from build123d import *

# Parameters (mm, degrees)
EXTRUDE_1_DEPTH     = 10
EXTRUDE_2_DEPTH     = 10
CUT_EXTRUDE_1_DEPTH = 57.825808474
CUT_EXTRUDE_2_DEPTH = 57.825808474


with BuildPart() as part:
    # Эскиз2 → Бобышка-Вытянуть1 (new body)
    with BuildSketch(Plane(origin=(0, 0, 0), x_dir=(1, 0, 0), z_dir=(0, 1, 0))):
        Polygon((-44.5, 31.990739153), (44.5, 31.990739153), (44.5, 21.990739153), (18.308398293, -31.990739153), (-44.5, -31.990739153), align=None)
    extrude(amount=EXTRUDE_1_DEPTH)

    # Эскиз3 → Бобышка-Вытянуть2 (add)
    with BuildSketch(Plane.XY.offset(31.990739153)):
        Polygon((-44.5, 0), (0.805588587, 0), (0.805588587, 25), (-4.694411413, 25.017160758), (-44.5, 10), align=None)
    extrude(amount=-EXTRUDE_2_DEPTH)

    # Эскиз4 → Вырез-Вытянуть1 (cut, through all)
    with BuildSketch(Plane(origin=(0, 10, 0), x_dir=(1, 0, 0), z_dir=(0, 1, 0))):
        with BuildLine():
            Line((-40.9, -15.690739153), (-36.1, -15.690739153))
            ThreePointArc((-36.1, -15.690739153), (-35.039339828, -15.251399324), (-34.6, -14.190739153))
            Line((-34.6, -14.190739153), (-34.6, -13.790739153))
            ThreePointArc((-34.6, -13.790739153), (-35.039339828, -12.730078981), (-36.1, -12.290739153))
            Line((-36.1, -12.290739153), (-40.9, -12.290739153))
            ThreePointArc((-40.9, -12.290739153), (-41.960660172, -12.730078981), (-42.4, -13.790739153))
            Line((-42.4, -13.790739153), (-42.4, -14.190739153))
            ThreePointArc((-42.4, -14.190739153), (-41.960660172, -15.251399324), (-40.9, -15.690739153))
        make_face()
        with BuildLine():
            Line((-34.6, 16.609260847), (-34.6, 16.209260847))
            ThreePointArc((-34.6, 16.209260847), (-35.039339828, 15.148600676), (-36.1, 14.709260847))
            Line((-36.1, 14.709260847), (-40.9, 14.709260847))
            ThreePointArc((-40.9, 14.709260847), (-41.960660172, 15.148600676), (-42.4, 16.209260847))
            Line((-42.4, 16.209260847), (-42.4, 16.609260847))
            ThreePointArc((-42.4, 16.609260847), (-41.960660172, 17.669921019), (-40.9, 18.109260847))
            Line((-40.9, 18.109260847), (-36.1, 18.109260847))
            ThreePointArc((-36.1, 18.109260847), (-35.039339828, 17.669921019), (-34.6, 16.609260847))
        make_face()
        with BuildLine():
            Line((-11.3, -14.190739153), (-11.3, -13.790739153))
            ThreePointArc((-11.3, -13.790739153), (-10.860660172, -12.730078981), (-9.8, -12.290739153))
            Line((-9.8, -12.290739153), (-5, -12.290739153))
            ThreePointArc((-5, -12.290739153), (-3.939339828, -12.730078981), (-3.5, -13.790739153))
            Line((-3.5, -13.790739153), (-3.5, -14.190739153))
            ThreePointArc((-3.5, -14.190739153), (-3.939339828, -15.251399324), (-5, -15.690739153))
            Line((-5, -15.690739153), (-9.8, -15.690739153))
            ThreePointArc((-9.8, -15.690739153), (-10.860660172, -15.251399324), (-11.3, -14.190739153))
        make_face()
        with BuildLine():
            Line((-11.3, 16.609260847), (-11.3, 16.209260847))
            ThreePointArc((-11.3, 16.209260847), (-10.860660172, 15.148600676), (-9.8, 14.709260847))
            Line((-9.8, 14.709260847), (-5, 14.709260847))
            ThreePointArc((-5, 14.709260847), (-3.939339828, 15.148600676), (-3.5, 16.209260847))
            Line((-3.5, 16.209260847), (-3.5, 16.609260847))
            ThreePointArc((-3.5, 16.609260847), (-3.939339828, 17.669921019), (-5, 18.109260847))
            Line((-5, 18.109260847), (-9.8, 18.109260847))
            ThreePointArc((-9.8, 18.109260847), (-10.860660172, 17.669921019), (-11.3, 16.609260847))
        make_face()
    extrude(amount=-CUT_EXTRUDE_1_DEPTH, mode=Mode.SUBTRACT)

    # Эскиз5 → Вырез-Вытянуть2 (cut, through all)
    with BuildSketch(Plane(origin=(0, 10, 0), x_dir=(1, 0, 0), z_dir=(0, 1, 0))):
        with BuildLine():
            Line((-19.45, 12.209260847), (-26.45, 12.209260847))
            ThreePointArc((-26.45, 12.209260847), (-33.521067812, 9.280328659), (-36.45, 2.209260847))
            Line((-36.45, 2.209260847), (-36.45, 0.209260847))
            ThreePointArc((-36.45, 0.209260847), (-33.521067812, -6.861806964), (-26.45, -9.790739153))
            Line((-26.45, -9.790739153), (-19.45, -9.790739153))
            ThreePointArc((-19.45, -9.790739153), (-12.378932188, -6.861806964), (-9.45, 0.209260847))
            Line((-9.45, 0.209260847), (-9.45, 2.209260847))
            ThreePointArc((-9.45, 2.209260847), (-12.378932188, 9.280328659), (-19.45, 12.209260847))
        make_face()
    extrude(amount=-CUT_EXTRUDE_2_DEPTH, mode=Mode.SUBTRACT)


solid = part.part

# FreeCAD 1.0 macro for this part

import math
import FreeCAD as App
import Part
import Sketcher
from FreeCAD import Vector
Q = App.Units.Quantity

doc = App.newDocument("Part")
params = doc.addObject("Spreadsheet::Sheet", "Params")
for row, (alias, value) in enumerate([
    ("sketch1_width", "89 mm"),
    ("sketch1_height", "10 mm"),
    ("sketch1_length", "60 mm"),
    ("pad1_length", "10 mm"),
    ("sketch2_height", "25 mm"),
    ("sketch2_height2", "10 mm"),
    ("pad2_length", "10 mm"),
    ("sketch3_radius", "1.5 mm"),
    ("sketch3_width", "4.8 mm"),
    ("sketch3_height", "0.4 mm"),
    ("sketch4_radius", "10 mm"),
    ("sketch4_width", "7 mm"),
    ("sketch4_height", "2 mm"),
], start=1):
    params.set(f"A{row}", alias)
    params.set(f"B{row}", "=" + value)
    params.setAlias(f"B{row}", alias)

body = doc.addObject("PartDesign::Body", "Body")

# Sketch on XZ plane
sketch1 = body.newObject("Sketcher::SketchObject", "Sketch")
sketch1.AttachmentSupport = (doc.getObject("XZ_Plane"), [""])
sketch1.MapMode = "FlatFace"
sketch1.addGeometry([
    Part.LineSegment(Vector(44, -32, 0), Vector(-44, -32, 0)),  # 0
    Part.LineSegment(Vector(-44, -32, 0), Vector(-44, 32, 0)),  # 1
    Part.LineSegment(Vector(-44, 32, 0), Vector(18, 32, 0)),  # 2
    Part.LineSegment(Vector(18, 32, 0), Vector(44, -22, 0)),  # 3
    Part.LineSegment(Vector(44, -22, 0), Vector(44, -32, 0)),  # 4
], False)
sketch1.addConstraint([
    Sketcher.Constraint("Coincident", 0, 2, 1, 1),
    Sketcher.Constraint("Coincident", 1, 2, 2, 1),
    Sketcher.Constraint("Coincident", 2, 2, 3, 1),
    Sketcher.Constraint("Coincident", 3, 2, 4, 1),
    Sketcher.Constraint("Coincident", 4, 2, 0, 1),
    Sketcher.Constraint("Horizontal", 0),
    Sketcher.Constraint("Vertical", 1),
    Sketcher.Constraint("Horizontal", 2),
    Sketcher.Constraint("Vertical", 4),
    Sketcher.Constraint("Symmetric", 1, 2, 4, 2, -1, 1),
    Sketcher.Constraint("DistanceX", 0, 2, 0, 1, Q("89 mm")),
    Sketcher.Constraint("DistanceY", 4, 2, 4, 1, Q("10 mm")),
    Sketcher.Constraint("Distance", 3, Q("60 mm")),
    Sketcher.Constraint("DistanceX", 2, 1, 2, 2, Q("62.808398 mm")),
])
sketch1.setExpression("Constraints[10]", "Params.sketch1_width")
sketch1.setExpression("Constraints[11]", "Params.sketch1_height")
sketch1.setExpression("Constraints[12]", "Params.sketch1_length")
pad1 = body.newObject("PartDesign::Pad", "Pad")
pad1.Profile = sketch1
pad1.setExpression("Length", "Params.pad1_length")
pad1.Reversed = True

# Sketch on XY plane
sketch2 = body.newObject("Sketcher::SketchObject", "Sketch001")
sketch2.AttachmentSupport = (doc.getObject("XY_Plane"), [""])
sketch2.MapMode = "FlatFace"
sketch2.AttachmentOffset = App.Placement(Vector(0, 0, 31.990739), App.Rotation())
sketch2.addGeometry([
    Part.LineSegment(Vector(-44, 0, 0), Vector(1, 0, 0)),  # 0
    Part.LineSegment(Vector(1, 0, 0), Vector(1, 25, 0)),  # 1
    Part.LineSegment(Vector(1, 25, 0), Vector(-5, 25, 0)),  # 2
    Part.LineSegment(Vector(-5, 25, 0), Vector(-44, 10, 0)),  # 3
    Part.LineSegment(Vector(-44, 10, 0), Vector(-44, 0, 0)),  # 4
], False)
sketch2.addConstraint([
    Sketcher.Constraint("Coincident", 0, 2, 1, 1),
    Sketcher.Constraint("Coincident", 1, 2, 2, 1),
    Sketcher.Constraint("Coincident", 2, 2, 3, 1),
    Sketcher.Constraint("Coincident", 3, 2, 4, 1),
    Sketcher.Constraint("Coincident", 4, 2, 0, 1),
    Sketcher.Constraint("Horizontal", 0),
    Sketcher.Constraint("Vertical", 1),
    Sketcher.Constraint("Vertical", 4),
    Sketcher.Constraint("PointOnObject", 0, 2, -1),
    Sketcher.Constraint("DistanceY", 1, 1, 1, 2, Q("25 mm")),
    Sketcher.Constraint("DistanceY", 4, 2, 4, 1, Q("10 mm")),
    Sketcher.Constraint("DistanceX", 3, 2, -1, 1, Q("44.5 mm")),
    Sketcher.Constraint("DistanceX", 2, 2, 1, 2, Q("5.5 mm")),
    Sketcher.Constraint("DistanceX", 0, 1, 0, 2, Q("45.305589 mm")),
    Sketcher.Constraint("DistanceY", -1, 1, 2, 2, Q("25.017161 mm")),
])
sketch2.setExpression("Constraints[9]", "Params.sketch2_height")
sketch2.setExpression("Constraints[10]", "Params.sketch2_height2")
pad2 = body.newObject("PartDesign::Pad", "Pad001")
pad2.Profile = sketch2
pad2.setExpression("Length", "Params.pad2_length")
pad2.Reversed = True

# Sketch on XZ plane
sketch3 = body.newObject("Sketcher::SketchObject", "Sketch002")
sketch3.AttachmentSupport = (doc.getObject("XZ_Plane"), [""])
sketch3.MapMode = "FlatFace"
sketch3.AttachmentOffset = App.Placement(Vector(0, 0, -10), App.Rotation())
sketch3.addGeometry([
    Part.LineSegment(Vector(-40.9, 15.69, 0), Vector(-36.1, 15.69, 0)),  # 0
    Part.ArcOfCircle(Part.Circle(Vector(-36.1, 14.19, 0), Vector(0, 0, 1), 1.5), math.radians(0), math.radians(90)),  # 1
    Part.LineSegment(Vector(-34.6, 14.19, 0), Vector(-34.6, 13.79, 0)),  # 2
    Part.ArcOfCircle(Part.Circle(Vector(-36.1, 13.79, 0), Vector(0, 0, 1), 1.5), math.radians(-90), math.radians(0)),  # 3
    Part.LineSegment(Vector(-36.1, 12.29, 0), Vector(-40.9, 12.29, 0)),  # 4
    Part.ArcOfCircle(Part.Circle(Vector(-40.9, 13.79, 0), Vector(0, 0, 1), 1.5), math.radians(180), math.radians(270)),  # 5
    Part.LineSegment(Vector(-42.4, 13.79, 0), Vector(-42.4, 14.19, 0)),  # 6
    Part.ArcOfCircle(Part.Circle(Vector(-40.9, 14.19, 0), Vector(0, 0, 1), 1.5), math.radians(90), math.radians(180)),  # 7
    Part.LineSegment(Vector(-34.6, -16.21, 0), Vector(-34.6, -16.61, 0)),  # 8
    Part.ArcOfCircle(Part.Circle(Vector(-36.1, -16.61, 0), Vector(0, 0, 1), 1.5), math.radians(-90), math.radians(0)),  # 9
    Part.LineSegment(Vector(-36.1, -18.11, 0), Vector(-40.9, -18.11, 0)),  # 10
    Part.ArcOfCircle(Part.Circle(Vector(-40.9, -16.61, 0), Vector(0, 0, 1), 1.5), math.radians(180), math.radians(270)),  # 11
    Part.LineSegment(Vector(-42.4, -16.61, 0), Vector(-42.4, -16.21, 0)),  # 12
    Part.ArcOfCircle(Part.Circle(Vector(-40.9, -16.21, 0), Vector(0, 0, 1), 1.5), math.radians(90), math.radians(180)),  # 13
    Part.LineSegment(Vector(-40.9, -14.71, 0), Vector(-36.1, -14.71, 0)),  # 14
    Part.ArcOfCircle(Part.Circle(Vector(-36.1, -16.21, 0), Vector(0, 0, 1), 1.5), math.radians(0), math.radians(90)),  # 15
    Part.LineSegment(Vector(-11.3, 13.79, 0), Vector(-11.3, 14.19, 0)),  # 16
    Part.ArcOfCircle(Part.Circle(Vector(-9.8, 14.19, 0), Vector(0, 0, 1), 1.5), math.radians(90), math.radians(180)),  # 17
    Part.LineSegment(Vector(-9.8, 15.69, 0), Vector(-5, 15.69, 0)),  # 18
    Part.ArcOfCircle(Part.Circle(Vector(-5, 14.19, 0), Vector(0, 0, 1), 1.5), math.radians(0), math.radians(90)),  # 19
    Part.LineSegment(Vector(-3.5, 14.19, 0), Vector(-3.5, 13.79, 0)),  # 20
    Part.ArcOfCircle(Part.Circle(Vector(-5, 13.79, 0), Vector(0, 0, 1), 1.5), math.radians(-90), math.radians(0)),  # 21
    Part.LineSegment(Vector(-5, 12.29, 0), Vector(-9.8, 12.29, 0)),  # 22
    Part.ArcOfCircle(Part.Circle(Vector(-9.8, 13.79, 0), Vector(0, 0, 1), 1.5), math.radians(180), math.radians(270)),  # 23
    Part.LineSegment(Vector(-11.3, -16.61, 0), Vector(-11.3, -16.21, 0)),  # 24
    Part.ArcOfCircle(Part.Circle(Vector(-9.8, -16.21, 0), Vector(0, 0, 1), 1.5), math.radians(90), math.radians(180)),  # 25
    Part.LineSegment(Vector(-9.8, -14.71, 0), Vector(-5, -14.71, 0)),  # 26
    Part.ArcOfCircle(Part.Circle(Vector(-5, -16.21, 0), Vector(0, 0, 1), 1.5), math.radians(0), math.radians(90)),  # 27
    Part.LineSegment(Vector(-3.5, -16.21, 0), Vector(-3.5, -16.61, 0)),  # 28
    Part.ArcOfCircle(Part.Circle(Vector(-5, -16.61, 0), Vector(0, 0, 1), 1.5), math.radians(-90), math.radians(0)),  # 29
    Part.LineSegment(Vector(-5, -18.11, 0), Vector(-9.8, -18.11, 0)),  # 30
    Part.ArcOfCircle(Part.Circle(Vector(-9.8, -16.61, 0), Vector(0, 0, 1), 1.5), math.radians(180), math.radians(270)),  # 31
], False)
sketch3.addConstraint([
    Sketcher.Constraint("Tangent", 0, 2, 1, 2),
    Sketcher.Constraint("Tangent", 1, 1, 2, 1),
    Sketcher.Constraint("Tangent", 2, 2, 3, 2),
    Sketcher.Constraint("Tangent", 3, 1, 4, 1),
    Sketcher.Constraint("Tangent", 4, 2, 5, 2),
    Sketcher.Constraint("Tangent", 5, 1, 6, 1),
    Sketcher.Constraint("Tangent", 6, 2, 7, 2),
    Sketcher.Constraint("Tangent", 7, 1, 0, 1),
    Sketcher.Constraint("Tangent", 8, 2, 9, 2),
    Sketcher.Constraint("Tangent", 9, 1, 10, 1),
    Sketcher.Constraint("Tangent", 10, 2, 11, 2),
    Sketcher.Constraint("Tangent", 11, 1, 12, 1),
    Sketcher.Constraint("Tangent", 12, 2, 13, 2),
    Sketcher.Constraint("Tangent", 13, 1, 14, 1),
    Sketcher.Constraint("Tangent", 14, 2, 15, 2),
    Sketcher.Constraint("Tangent", 15, 1, 8, 1),
    Sketcher.Constraint("Tangent", 16, 2, 17, 2),
    Sketcher.Constraint("Tangent", 17, 1, 18, 1),
    Sketcher.Constraint("Tangent", 18, 2, 19, 2),
    Sketcher.Constraint("Tangent", 19, 1, 20, 1),
    Sketcher.Constraint("Tangent", 20, 2, 21, 2),
    Sketcher.Constraint("Tangent", 21, 1, 22, 1),
    Sketcher.Constraint("Tangent", 22, 2, 23, 2),
    Sketcher.Constraint("Tangent", 23, 1, 16, 1),
    Sketcher.Constraint("Tangent", 24, 2, 25, 2),
    Sketcher.Constraint("Tangent", 25, 1, 26, 1),
    Sketcher.Constraint("Tangent", 26, 2, 27, 2),
    Sketcher.Constraint("Tangent", 27, 1, 28, 1),
    Sketcher.Constraint("Tangent", 28, 2, 29, 2),
    Sketcher.Constraint("Tangent", 29, 1, 30, 1),
    Sketcher.Constraint("Tangent", 30, 2, 31, 2),
    Sketcher.Constraint("Tangent", 31, 1, 24, 1),
    Sketcher.Constraint("Horizontal", 0),
    Sketcher.Constraint("Vertical", 2),
    Sketcher.Constraint("Horizontal", 4),
    Sketcher.Constraint("Vertical", 6),
    Sketcher.Constraint("Vertical", 8),
    Sketcher.Constraint("Horizontal", 10),
    Sketcher.Constraint("Vertical", 12),
    Sketcher.Constraint("Horizontal", 14),
    Sketcher.Constraint("Vertical", 16),
    Sketcher.Constraint("Horizontal", 18),
    Sketcher.Constraint("Vertical", 20),
    Sketcher.Constraint("Horizontal", 22),
    Sketcher.Constraint("Vertical", 24),
    Sketcher.Constraint("Horizontal", 26),
    Sketcher.Constraint("Vertical", 28),
    Sketcher.Constraint("Horizontal", 30),
    Sketcher.Constraint("Equal", 1, 3),
    Sketcher.Constraint("Equal", 3, 5),
    Sketcher.Constraint("Equal", 5, 7),
    Sketcher.Constraint("Equal", 7, 9),
    Sketcher.Constraint("Equal", 9, 11),
    Sketcher.Constraint("Equal", 11, 13),
    Sketcher.Constraint("Equal", 13, 15),
    Sketcher.Constraint("Equal", 15, 17),
    Sketcher.Constraint("Equal", 17, 19),
    Sketcher.Constraint("Equal", 19, 21),
    Sketcher.Constraint("Equal", 21, 23),
    Sketcher.Constraint("Equal", 23, 25),
    Sketcher.Constraint("Equal", 25, 27),
    Sketcher.Constraint("Equal", 27, 29),
    Sketcher.Constraint("Equal", 29, 31),
    Sketcher.Constraint("Horizontal", 7, 3, 17, 3),
    Sketcher.Constraint("Horizontal", 5, 3, 21, 3),
    Sketcher.Constraint("Horizontal", 15, 3, 25, 3),
    Sketcher.Constraint("Horizontal", 11, 3, 29, 3),
    Sketcher.Constraint("Vertical", 3, 3, 9, 3),
    Sketcher.Constraint("Vertical", 7, 3, 11, 3),
    Sketcher.Constraint("Vertical", 23, 3, 25, 3),
    Sketcher.Constraint("Vertical", 21, 3, 27, 3),
    Sketcher.Constraint("Equal", 14, 18),
    Sketcher.Constraint("Equal", 6, 8),
    Sketcher.Constraint("Radius", 1, Q("1.5 mm")),
    Sketcher.Constraint("DistanceX", 0, 1, 0, 2, Q("4.8 mm")),
    Sketcher.Constraint("DistanceY", 2, 2, 2, 1, Q("0.4 mm")),
    Sketcher.Constraint("DistanceX", 19, 3, -1, 1, Q("5 mm")),
    Sketcher.Constraint("DistanceY", 13, 3, 5, 3, Q("30 mm")),
    Sketcher.Constraint("DistanceX", 1, 3, -1, 1, Q("36.1 mm")),
    Sketcher.Constraint("DistanceY", -1, 1, 1, 3, Q("14.190739 mm")),
])
sketch3.setExpression("Constraints[73]", "Params.sketch3_radius")
sketch3.setExpression("Constraints[74]", "Params.sketch3_width")
sketch3.setExpression("Constraints[75]", "Params.sketch3_height")
pocket1 = body.newObject("PartDesign::Pocket", "Pocket")
pocket1.Profile = sketch3
pocket1.Type = "ThroughAll"
pocket1.Reversed = True

# Sketch on XZ plane
sketch4 = body.newObject("Sketcher::SketchObject", "Sketch003")
sketch4.AttachmentSupport = (doc.getObject("XZ_Plane"), [""])
sketch4.MapMode = "FlatFace"
sketch4.AttachmentOffset = App.Placement(Vector(0, 0, -10), App.Rotation())
sketch4.addGeometry([
    Part.LineSegment(Vector(-19.4, -12.2, 0), Vector(-26.4, -12.2, 0)),  # 0
    Part.ArcOfCircle(Part.Circle(Vector(-26.4, -2.2, 0), Vector(0, 0, 1), 10), math.radians(180), math.radians(270)),  # 1
    Part.LineSegment(Vector(-36.5, -2.2, 0), Vector(-36.5, -0.2, 0)),  # 2
    Part.ArcOfCircle(Part.Circle(Vector(-26.4, -0.2, 0), Vector(0, 0, 1), 10), math.radians(90), math.radians(180)),  # 3
    Part.LineSegment(Vector(-26.4, 9.8, 0), Vector(-19.4, 9.8, 0)),  # 4
    Part.ArcOfCircle(Part.Circle(Vector(-19.5, -0.2, 0), Vector(0, 0, 1), 10), math.radians(0), math.radians(90)),  # 5
    Part.LineSegment(Vector(-9.4, -0.2, 0), Vector(-9.4, -2.2, 0)),  # 6
    Part.ArcOfCircle(Part.Circle(Vector(-19.4, -2.2, 0), Vector(0, 0, 1), 10), math.radians(-90), math.radians(0)),  # 7
], False)
sketch4.addConstraint([
    Sketcher.Constraint("Tangent", 0, 2, 1, 2),
    Sketcher.Constraint("Tangent", 1, 1, 2, 1),
    Sketcher.Constraint("Tangent", 2, 2, 3, 2),
    Sketcher.Constraint("Tangent", 3, 1, 4, 1),
    Sketcher.Constraint("Tangent", 4, 2, 5, 2),
    Sketcher.Constraint("Tangent", 5, 1, 6, 1),
    Sketcher.Constraint("Tangent", 6, 2, 7, 2),
    Sketcher.Constraint("Tangent", 7, 1, 0, 1),
    Sketcher.Constraint("Horizontal", 0),
    Sketcher.Constraint("Vertical", 2),
    Sketcher.Constraint("Horizontal", 4),
    Sketcher.Constraint("Vertical", 6),
    Sketcher.Constraint("Equal", 1, 3),
    Sketcher.Constraint("Equal", 3, 5),
    Sketcher.Constraint("Equal", 5, 7),
    Sketcher.Constraint("Radius", 1, Q("10 mm")),
    Sketcher.Constraint("DistanceX", 0, 2, 0, 1, Q("7 mm")),
    Sketcher.Constraint("DistanceY", 2, 1, 2, 2, Q("2 mm")),
    Sketcher.Constraint("DistanceX", 1, 3, -1, 1, Q("26.45 mm")),
    Sketcher.Constraint("DistanceY", 1, 3, -1, 1, Q("2.209261 mm")),
])
sketch4.setExpression("Constraints[15]", "Params.sketch4_radius")
sketch4.setExpression("Constraints[16]", "Params.sketch4_width")
sketch4.setExpression("Constraints[17]", "Params.sketch4_height")
pocket2 = body.newObject("PartDesign::Pocket", "Pocket001")
pocket2.Profile = sketch4
pocket2.Type = "ThroughAll"
pocket2.Reversed = True

doc.recompute()
